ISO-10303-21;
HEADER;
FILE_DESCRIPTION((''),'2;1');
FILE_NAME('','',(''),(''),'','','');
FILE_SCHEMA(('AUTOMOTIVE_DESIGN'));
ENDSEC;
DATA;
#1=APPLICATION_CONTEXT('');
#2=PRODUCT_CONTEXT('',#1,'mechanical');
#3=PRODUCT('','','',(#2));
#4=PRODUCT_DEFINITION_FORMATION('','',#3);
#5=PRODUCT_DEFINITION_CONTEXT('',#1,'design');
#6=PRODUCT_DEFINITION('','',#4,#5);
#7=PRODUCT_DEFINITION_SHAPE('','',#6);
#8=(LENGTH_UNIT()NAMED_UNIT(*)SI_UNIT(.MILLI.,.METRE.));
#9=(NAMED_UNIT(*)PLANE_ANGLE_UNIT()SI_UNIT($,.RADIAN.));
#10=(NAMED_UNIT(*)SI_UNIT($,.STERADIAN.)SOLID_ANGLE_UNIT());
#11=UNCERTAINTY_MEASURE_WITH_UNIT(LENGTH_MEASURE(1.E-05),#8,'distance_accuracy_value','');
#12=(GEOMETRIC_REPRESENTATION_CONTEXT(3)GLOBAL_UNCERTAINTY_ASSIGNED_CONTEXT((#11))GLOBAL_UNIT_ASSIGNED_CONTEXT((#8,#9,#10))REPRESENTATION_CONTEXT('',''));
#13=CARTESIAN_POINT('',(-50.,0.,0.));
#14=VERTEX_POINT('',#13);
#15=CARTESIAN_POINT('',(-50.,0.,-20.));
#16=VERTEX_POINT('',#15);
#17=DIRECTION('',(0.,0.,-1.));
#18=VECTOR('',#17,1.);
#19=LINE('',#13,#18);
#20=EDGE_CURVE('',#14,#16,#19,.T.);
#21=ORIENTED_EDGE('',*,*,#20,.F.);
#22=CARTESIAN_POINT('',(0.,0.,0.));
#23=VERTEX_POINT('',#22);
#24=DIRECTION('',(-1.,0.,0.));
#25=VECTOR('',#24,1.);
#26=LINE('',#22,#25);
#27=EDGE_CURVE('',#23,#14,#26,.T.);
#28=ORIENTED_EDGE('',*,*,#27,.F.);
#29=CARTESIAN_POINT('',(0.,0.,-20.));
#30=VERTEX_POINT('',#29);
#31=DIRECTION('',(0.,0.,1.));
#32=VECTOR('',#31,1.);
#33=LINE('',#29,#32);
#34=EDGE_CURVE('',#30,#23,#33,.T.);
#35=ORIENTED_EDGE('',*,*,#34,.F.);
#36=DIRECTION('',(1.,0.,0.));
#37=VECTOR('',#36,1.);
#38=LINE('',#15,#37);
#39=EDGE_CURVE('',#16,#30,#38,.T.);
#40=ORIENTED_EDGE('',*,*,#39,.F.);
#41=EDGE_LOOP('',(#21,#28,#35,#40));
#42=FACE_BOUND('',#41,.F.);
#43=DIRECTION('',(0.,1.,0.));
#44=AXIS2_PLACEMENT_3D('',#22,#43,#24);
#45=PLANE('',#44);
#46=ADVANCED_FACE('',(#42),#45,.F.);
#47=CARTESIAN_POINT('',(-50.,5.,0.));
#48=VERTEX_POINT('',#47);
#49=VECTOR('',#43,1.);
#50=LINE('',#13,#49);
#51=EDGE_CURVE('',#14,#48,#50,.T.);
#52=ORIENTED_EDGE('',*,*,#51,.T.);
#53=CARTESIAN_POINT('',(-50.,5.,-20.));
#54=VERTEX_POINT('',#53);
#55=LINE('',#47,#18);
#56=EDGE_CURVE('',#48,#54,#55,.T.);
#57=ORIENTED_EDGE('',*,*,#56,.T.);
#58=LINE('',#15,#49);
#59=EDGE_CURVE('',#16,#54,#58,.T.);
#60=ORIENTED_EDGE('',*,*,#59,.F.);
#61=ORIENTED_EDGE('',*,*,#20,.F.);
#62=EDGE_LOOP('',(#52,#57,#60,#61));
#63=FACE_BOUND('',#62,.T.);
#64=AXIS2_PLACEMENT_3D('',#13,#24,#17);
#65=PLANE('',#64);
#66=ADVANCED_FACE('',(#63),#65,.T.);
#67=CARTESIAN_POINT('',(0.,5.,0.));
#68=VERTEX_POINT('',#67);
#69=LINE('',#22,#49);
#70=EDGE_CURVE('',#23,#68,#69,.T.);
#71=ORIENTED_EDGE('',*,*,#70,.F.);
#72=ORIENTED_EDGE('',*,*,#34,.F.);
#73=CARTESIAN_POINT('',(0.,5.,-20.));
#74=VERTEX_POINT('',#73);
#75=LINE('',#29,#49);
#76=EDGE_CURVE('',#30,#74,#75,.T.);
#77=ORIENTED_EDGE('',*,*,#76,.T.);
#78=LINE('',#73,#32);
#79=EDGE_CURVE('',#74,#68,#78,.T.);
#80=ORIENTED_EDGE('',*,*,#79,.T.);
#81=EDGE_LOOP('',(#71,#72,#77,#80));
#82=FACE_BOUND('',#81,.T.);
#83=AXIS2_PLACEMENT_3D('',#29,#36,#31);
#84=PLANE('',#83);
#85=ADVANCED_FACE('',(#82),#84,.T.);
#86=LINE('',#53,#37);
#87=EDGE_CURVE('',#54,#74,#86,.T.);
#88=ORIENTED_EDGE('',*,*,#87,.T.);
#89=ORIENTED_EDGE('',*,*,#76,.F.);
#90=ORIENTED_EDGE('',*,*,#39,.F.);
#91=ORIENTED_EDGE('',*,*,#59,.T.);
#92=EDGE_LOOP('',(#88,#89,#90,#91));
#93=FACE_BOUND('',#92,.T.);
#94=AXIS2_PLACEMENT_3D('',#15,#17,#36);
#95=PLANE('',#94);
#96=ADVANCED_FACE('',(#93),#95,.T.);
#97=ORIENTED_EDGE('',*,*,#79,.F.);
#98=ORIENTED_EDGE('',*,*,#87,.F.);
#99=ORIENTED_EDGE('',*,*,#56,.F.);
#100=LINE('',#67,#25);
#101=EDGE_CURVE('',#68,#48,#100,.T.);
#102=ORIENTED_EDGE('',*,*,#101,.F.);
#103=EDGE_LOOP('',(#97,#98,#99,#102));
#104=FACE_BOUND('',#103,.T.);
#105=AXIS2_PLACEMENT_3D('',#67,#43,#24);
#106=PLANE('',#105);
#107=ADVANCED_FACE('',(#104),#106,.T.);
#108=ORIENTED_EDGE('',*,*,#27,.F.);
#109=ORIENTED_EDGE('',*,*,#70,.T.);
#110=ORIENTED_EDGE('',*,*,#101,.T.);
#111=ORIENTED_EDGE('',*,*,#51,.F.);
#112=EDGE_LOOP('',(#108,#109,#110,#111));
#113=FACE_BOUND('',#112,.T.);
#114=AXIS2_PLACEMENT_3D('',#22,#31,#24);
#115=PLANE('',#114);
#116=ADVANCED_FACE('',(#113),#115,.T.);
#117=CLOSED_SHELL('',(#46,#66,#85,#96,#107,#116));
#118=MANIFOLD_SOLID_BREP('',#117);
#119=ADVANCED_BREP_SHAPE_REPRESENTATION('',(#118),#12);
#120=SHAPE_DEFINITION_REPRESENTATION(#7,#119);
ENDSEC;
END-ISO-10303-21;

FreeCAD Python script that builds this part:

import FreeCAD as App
import Part
import Sketcher
from FreeCAD import Vector
Q = App.Units.Quantity


def add_polygon(sketch, points):
    """Adds a closed chain of lines whose ends are joined by coincident constraints."""
    first, n = sketch.GeometryCount, len(points)
    for a, b in zip(points, points[1:] + points[:1]):
        sketch.addGeometry(Part.LineSegment(App.Vector(*a, 0), App.Vector(*b, 0)), False)
    for i in range(n):
        sketch.addConstraint(Sketcher.Constraint("Coincident", first + i, 2, first + (i + 1) % n, 1))

doc = App.newDocument("Part")
body = doc.addObject("PartDesign::Body", "Body")

sketch1 = body.newObject("Sketcher::SketchObject", "Sketch")
sketch1.AttachmentSupport = (doc.getObject("XZ_Plane"), [""])
sketch1.MapMode = "FlatFace"
add_polygon(sketch1, [(-50, 0), (0, 0), (0, -20), (-50, -20)])
sketch1.addConstraint([
    Sketcher.Constraint("Horizontal", 0),
    Sketcher.Constraint("Vertical", 1),
    Sketcher.Constraint("Horizontal", 2),
    Sketcher.Constraint("Vertical", 3),
    Sketcher.Constraint("Coincident", 0, 2, -1, 1),
    Sketcher.Constraint("DistanceX", 0, 1, 0, 2, Q("50 mm")),
    Sketcher.Constraint("DistanceY", 1, 2, 1, 1, Q("20 mm")),
])
pad1 = body.newObject("PartDesign::Pad", "Pad")
pad1.Profile = sketch1
pad1.Length = 5
pad1.Reversed = True

doc.recompute()
